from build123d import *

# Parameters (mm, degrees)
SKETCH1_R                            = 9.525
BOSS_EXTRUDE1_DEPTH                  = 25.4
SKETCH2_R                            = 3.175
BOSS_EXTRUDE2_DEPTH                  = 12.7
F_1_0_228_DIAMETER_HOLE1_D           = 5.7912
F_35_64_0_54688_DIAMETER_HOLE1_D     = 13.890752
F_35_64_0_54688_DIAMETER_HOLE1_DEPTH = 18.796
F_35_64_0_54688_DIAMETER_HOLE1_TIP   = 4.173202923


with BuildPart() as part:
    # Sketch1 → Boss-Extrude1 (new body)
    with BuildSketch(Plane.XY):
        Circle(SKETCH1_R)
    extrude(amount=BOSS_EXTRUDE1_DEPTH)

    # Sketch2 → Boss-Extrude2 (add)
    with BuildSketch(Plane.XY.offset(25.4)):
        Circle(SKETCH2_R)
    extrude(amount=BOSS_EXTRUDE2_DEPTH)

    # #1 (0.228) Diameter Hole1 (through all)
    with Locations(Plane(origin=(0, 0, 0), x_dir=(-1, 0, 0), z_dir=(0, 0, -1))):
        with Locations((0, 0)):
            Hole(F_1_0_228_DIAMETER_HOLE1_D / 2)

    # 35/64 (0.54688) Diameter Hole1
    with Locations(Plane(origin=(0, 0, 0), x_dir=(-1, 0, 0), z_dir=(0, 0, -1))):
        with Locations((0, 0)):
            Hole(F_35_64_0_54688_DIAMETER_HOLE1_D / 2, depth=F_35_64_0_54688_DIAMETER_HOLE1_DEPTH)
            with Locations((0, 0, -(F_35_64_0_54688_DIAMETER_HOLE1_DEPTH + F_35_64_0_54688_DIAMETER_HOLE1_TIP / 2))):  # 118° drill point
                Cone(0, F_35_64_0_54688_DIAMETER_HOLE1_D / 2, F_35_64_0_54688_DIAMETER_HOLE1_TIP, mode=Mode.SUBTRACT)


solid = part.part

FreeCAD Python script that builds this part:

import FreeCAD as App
import Part
import Sketcher
Q = App.Units.Quantity

doc = App.newDocument("Part")
body = doc.addObject("PartDesign::Body", "Body")

# Sketch on XY plane
sketch1 = body.newObject("Sketcher::SketchObject", "Sketch")
sketch1.AttachmentSupport = (doc.getObject("XY_Plane"), [""])
sketch1.MapMode = "FlatFace"
sketch1.addGeometry(Part.Circle(App.Vector(0, 0, 0), App.Vector(0, 0, 1), 9.525), False)
sketch1.addConstraint(Sketcher.Constraint("Coincident", 0, 3, -1, 1))
sketch1.addConstraint(Sketcher.Constraint("Diameter", 0, Q("0.75 in")))
pad1 = body.newObject("PartDesign::Pad", "Pad")
pad1.Profile = sketch1
pad1.Length = Q("1 in")

# Sketch on XY plane
sketch2 = body.newObject("Sketcher::SketchObject", "Sketch001")
sketch2.AttachmentSupport = (doc.getObject("XY_Plane"), [""])
sketch2.MapMode = "FlatFace"
sketch2.AttachmentOffset = App.Placement(App.Vector(0, 0, 1 * 25.4), App.Rotation())
sketch2.addGeometry(Part.Circle(App.Vector(0, 0, 0), App.Vector(0, 0, 1), 3.175), False)
sketch2.addConstraint(Sketcher.Constraint("Coincident", 0, 3, -1, 1))
sketch2.addConstraint(Sketcher.Constraint("Diameter", 0, Q("0.25 in")))
pad2 = body.newObject("PartDesign::Pad", "Pad001")
pad2.Profile = sketch2
pad2.Length = Q("0.5 in")

# Sketch on XY plane
sketch3 = body.newObject("Sketcher::SketchObject", "Sketch002")
sketch3.AttachmentSupport = (doc.getObject("XY_Plane"), [""])
sketch3.MapMode = "FlatFace"
sketch3.addGeometry(Part.Circle(App.Vector(0, 0, 0), App.Vector(0, 0, 1), 2.8956), False)
sketch3.addConstraint(Sketcher.Constraint("Coincident", 0, 3, -1, 1))
sketch3.addConstraint(Sketcher.Constraint("Diameter", 0, Q("0.228 in")))
doc.recompute()
hole = body.newObject("PartDesign::Hole", "Hole")
hole.Profile = sketch3
hole.ThreadType = "None"
hole.Diameter = Q("0.228 in")
hole.DepthType = "ThroughAll"
hole.Reversed = True

# Sketch on XY plane
sketch4 = body.newObject("Sketcher::SketchObject", "Sketch003")
sketch4.AttachmentSupport = (doc.getObject("XY_Plane"), [""])
sketch4.MapMode = "FlatFace"
sketch4.addGeometry(Part.Circle(App.Vector(0, 0, 0), App.Vector(0, 0, 1), 6.945376), False)
sketch4.addConstraint(Sketcher.Constraint("Coincident", 0, 3, -1, 1))
sketch4.addConstraint(Sketcher.Constraint("Diameter", 0, Q("13.890752 mm")))
doc.recompute()
hole2 = body.newObject("PartDesign::Hole", "Hole001")
hole2.Profile = sketch4
hole2.ThreadType = "None"
hole2.Diameter = 13.890752
hole2.DepthType = "Dimension"
hole2.Depth = Q("0.74 in")
hole2.DrillPoint = "Angled"
hole2.DrillPointAngle = 118
hole2.Reversed = True

doc.recompute()
